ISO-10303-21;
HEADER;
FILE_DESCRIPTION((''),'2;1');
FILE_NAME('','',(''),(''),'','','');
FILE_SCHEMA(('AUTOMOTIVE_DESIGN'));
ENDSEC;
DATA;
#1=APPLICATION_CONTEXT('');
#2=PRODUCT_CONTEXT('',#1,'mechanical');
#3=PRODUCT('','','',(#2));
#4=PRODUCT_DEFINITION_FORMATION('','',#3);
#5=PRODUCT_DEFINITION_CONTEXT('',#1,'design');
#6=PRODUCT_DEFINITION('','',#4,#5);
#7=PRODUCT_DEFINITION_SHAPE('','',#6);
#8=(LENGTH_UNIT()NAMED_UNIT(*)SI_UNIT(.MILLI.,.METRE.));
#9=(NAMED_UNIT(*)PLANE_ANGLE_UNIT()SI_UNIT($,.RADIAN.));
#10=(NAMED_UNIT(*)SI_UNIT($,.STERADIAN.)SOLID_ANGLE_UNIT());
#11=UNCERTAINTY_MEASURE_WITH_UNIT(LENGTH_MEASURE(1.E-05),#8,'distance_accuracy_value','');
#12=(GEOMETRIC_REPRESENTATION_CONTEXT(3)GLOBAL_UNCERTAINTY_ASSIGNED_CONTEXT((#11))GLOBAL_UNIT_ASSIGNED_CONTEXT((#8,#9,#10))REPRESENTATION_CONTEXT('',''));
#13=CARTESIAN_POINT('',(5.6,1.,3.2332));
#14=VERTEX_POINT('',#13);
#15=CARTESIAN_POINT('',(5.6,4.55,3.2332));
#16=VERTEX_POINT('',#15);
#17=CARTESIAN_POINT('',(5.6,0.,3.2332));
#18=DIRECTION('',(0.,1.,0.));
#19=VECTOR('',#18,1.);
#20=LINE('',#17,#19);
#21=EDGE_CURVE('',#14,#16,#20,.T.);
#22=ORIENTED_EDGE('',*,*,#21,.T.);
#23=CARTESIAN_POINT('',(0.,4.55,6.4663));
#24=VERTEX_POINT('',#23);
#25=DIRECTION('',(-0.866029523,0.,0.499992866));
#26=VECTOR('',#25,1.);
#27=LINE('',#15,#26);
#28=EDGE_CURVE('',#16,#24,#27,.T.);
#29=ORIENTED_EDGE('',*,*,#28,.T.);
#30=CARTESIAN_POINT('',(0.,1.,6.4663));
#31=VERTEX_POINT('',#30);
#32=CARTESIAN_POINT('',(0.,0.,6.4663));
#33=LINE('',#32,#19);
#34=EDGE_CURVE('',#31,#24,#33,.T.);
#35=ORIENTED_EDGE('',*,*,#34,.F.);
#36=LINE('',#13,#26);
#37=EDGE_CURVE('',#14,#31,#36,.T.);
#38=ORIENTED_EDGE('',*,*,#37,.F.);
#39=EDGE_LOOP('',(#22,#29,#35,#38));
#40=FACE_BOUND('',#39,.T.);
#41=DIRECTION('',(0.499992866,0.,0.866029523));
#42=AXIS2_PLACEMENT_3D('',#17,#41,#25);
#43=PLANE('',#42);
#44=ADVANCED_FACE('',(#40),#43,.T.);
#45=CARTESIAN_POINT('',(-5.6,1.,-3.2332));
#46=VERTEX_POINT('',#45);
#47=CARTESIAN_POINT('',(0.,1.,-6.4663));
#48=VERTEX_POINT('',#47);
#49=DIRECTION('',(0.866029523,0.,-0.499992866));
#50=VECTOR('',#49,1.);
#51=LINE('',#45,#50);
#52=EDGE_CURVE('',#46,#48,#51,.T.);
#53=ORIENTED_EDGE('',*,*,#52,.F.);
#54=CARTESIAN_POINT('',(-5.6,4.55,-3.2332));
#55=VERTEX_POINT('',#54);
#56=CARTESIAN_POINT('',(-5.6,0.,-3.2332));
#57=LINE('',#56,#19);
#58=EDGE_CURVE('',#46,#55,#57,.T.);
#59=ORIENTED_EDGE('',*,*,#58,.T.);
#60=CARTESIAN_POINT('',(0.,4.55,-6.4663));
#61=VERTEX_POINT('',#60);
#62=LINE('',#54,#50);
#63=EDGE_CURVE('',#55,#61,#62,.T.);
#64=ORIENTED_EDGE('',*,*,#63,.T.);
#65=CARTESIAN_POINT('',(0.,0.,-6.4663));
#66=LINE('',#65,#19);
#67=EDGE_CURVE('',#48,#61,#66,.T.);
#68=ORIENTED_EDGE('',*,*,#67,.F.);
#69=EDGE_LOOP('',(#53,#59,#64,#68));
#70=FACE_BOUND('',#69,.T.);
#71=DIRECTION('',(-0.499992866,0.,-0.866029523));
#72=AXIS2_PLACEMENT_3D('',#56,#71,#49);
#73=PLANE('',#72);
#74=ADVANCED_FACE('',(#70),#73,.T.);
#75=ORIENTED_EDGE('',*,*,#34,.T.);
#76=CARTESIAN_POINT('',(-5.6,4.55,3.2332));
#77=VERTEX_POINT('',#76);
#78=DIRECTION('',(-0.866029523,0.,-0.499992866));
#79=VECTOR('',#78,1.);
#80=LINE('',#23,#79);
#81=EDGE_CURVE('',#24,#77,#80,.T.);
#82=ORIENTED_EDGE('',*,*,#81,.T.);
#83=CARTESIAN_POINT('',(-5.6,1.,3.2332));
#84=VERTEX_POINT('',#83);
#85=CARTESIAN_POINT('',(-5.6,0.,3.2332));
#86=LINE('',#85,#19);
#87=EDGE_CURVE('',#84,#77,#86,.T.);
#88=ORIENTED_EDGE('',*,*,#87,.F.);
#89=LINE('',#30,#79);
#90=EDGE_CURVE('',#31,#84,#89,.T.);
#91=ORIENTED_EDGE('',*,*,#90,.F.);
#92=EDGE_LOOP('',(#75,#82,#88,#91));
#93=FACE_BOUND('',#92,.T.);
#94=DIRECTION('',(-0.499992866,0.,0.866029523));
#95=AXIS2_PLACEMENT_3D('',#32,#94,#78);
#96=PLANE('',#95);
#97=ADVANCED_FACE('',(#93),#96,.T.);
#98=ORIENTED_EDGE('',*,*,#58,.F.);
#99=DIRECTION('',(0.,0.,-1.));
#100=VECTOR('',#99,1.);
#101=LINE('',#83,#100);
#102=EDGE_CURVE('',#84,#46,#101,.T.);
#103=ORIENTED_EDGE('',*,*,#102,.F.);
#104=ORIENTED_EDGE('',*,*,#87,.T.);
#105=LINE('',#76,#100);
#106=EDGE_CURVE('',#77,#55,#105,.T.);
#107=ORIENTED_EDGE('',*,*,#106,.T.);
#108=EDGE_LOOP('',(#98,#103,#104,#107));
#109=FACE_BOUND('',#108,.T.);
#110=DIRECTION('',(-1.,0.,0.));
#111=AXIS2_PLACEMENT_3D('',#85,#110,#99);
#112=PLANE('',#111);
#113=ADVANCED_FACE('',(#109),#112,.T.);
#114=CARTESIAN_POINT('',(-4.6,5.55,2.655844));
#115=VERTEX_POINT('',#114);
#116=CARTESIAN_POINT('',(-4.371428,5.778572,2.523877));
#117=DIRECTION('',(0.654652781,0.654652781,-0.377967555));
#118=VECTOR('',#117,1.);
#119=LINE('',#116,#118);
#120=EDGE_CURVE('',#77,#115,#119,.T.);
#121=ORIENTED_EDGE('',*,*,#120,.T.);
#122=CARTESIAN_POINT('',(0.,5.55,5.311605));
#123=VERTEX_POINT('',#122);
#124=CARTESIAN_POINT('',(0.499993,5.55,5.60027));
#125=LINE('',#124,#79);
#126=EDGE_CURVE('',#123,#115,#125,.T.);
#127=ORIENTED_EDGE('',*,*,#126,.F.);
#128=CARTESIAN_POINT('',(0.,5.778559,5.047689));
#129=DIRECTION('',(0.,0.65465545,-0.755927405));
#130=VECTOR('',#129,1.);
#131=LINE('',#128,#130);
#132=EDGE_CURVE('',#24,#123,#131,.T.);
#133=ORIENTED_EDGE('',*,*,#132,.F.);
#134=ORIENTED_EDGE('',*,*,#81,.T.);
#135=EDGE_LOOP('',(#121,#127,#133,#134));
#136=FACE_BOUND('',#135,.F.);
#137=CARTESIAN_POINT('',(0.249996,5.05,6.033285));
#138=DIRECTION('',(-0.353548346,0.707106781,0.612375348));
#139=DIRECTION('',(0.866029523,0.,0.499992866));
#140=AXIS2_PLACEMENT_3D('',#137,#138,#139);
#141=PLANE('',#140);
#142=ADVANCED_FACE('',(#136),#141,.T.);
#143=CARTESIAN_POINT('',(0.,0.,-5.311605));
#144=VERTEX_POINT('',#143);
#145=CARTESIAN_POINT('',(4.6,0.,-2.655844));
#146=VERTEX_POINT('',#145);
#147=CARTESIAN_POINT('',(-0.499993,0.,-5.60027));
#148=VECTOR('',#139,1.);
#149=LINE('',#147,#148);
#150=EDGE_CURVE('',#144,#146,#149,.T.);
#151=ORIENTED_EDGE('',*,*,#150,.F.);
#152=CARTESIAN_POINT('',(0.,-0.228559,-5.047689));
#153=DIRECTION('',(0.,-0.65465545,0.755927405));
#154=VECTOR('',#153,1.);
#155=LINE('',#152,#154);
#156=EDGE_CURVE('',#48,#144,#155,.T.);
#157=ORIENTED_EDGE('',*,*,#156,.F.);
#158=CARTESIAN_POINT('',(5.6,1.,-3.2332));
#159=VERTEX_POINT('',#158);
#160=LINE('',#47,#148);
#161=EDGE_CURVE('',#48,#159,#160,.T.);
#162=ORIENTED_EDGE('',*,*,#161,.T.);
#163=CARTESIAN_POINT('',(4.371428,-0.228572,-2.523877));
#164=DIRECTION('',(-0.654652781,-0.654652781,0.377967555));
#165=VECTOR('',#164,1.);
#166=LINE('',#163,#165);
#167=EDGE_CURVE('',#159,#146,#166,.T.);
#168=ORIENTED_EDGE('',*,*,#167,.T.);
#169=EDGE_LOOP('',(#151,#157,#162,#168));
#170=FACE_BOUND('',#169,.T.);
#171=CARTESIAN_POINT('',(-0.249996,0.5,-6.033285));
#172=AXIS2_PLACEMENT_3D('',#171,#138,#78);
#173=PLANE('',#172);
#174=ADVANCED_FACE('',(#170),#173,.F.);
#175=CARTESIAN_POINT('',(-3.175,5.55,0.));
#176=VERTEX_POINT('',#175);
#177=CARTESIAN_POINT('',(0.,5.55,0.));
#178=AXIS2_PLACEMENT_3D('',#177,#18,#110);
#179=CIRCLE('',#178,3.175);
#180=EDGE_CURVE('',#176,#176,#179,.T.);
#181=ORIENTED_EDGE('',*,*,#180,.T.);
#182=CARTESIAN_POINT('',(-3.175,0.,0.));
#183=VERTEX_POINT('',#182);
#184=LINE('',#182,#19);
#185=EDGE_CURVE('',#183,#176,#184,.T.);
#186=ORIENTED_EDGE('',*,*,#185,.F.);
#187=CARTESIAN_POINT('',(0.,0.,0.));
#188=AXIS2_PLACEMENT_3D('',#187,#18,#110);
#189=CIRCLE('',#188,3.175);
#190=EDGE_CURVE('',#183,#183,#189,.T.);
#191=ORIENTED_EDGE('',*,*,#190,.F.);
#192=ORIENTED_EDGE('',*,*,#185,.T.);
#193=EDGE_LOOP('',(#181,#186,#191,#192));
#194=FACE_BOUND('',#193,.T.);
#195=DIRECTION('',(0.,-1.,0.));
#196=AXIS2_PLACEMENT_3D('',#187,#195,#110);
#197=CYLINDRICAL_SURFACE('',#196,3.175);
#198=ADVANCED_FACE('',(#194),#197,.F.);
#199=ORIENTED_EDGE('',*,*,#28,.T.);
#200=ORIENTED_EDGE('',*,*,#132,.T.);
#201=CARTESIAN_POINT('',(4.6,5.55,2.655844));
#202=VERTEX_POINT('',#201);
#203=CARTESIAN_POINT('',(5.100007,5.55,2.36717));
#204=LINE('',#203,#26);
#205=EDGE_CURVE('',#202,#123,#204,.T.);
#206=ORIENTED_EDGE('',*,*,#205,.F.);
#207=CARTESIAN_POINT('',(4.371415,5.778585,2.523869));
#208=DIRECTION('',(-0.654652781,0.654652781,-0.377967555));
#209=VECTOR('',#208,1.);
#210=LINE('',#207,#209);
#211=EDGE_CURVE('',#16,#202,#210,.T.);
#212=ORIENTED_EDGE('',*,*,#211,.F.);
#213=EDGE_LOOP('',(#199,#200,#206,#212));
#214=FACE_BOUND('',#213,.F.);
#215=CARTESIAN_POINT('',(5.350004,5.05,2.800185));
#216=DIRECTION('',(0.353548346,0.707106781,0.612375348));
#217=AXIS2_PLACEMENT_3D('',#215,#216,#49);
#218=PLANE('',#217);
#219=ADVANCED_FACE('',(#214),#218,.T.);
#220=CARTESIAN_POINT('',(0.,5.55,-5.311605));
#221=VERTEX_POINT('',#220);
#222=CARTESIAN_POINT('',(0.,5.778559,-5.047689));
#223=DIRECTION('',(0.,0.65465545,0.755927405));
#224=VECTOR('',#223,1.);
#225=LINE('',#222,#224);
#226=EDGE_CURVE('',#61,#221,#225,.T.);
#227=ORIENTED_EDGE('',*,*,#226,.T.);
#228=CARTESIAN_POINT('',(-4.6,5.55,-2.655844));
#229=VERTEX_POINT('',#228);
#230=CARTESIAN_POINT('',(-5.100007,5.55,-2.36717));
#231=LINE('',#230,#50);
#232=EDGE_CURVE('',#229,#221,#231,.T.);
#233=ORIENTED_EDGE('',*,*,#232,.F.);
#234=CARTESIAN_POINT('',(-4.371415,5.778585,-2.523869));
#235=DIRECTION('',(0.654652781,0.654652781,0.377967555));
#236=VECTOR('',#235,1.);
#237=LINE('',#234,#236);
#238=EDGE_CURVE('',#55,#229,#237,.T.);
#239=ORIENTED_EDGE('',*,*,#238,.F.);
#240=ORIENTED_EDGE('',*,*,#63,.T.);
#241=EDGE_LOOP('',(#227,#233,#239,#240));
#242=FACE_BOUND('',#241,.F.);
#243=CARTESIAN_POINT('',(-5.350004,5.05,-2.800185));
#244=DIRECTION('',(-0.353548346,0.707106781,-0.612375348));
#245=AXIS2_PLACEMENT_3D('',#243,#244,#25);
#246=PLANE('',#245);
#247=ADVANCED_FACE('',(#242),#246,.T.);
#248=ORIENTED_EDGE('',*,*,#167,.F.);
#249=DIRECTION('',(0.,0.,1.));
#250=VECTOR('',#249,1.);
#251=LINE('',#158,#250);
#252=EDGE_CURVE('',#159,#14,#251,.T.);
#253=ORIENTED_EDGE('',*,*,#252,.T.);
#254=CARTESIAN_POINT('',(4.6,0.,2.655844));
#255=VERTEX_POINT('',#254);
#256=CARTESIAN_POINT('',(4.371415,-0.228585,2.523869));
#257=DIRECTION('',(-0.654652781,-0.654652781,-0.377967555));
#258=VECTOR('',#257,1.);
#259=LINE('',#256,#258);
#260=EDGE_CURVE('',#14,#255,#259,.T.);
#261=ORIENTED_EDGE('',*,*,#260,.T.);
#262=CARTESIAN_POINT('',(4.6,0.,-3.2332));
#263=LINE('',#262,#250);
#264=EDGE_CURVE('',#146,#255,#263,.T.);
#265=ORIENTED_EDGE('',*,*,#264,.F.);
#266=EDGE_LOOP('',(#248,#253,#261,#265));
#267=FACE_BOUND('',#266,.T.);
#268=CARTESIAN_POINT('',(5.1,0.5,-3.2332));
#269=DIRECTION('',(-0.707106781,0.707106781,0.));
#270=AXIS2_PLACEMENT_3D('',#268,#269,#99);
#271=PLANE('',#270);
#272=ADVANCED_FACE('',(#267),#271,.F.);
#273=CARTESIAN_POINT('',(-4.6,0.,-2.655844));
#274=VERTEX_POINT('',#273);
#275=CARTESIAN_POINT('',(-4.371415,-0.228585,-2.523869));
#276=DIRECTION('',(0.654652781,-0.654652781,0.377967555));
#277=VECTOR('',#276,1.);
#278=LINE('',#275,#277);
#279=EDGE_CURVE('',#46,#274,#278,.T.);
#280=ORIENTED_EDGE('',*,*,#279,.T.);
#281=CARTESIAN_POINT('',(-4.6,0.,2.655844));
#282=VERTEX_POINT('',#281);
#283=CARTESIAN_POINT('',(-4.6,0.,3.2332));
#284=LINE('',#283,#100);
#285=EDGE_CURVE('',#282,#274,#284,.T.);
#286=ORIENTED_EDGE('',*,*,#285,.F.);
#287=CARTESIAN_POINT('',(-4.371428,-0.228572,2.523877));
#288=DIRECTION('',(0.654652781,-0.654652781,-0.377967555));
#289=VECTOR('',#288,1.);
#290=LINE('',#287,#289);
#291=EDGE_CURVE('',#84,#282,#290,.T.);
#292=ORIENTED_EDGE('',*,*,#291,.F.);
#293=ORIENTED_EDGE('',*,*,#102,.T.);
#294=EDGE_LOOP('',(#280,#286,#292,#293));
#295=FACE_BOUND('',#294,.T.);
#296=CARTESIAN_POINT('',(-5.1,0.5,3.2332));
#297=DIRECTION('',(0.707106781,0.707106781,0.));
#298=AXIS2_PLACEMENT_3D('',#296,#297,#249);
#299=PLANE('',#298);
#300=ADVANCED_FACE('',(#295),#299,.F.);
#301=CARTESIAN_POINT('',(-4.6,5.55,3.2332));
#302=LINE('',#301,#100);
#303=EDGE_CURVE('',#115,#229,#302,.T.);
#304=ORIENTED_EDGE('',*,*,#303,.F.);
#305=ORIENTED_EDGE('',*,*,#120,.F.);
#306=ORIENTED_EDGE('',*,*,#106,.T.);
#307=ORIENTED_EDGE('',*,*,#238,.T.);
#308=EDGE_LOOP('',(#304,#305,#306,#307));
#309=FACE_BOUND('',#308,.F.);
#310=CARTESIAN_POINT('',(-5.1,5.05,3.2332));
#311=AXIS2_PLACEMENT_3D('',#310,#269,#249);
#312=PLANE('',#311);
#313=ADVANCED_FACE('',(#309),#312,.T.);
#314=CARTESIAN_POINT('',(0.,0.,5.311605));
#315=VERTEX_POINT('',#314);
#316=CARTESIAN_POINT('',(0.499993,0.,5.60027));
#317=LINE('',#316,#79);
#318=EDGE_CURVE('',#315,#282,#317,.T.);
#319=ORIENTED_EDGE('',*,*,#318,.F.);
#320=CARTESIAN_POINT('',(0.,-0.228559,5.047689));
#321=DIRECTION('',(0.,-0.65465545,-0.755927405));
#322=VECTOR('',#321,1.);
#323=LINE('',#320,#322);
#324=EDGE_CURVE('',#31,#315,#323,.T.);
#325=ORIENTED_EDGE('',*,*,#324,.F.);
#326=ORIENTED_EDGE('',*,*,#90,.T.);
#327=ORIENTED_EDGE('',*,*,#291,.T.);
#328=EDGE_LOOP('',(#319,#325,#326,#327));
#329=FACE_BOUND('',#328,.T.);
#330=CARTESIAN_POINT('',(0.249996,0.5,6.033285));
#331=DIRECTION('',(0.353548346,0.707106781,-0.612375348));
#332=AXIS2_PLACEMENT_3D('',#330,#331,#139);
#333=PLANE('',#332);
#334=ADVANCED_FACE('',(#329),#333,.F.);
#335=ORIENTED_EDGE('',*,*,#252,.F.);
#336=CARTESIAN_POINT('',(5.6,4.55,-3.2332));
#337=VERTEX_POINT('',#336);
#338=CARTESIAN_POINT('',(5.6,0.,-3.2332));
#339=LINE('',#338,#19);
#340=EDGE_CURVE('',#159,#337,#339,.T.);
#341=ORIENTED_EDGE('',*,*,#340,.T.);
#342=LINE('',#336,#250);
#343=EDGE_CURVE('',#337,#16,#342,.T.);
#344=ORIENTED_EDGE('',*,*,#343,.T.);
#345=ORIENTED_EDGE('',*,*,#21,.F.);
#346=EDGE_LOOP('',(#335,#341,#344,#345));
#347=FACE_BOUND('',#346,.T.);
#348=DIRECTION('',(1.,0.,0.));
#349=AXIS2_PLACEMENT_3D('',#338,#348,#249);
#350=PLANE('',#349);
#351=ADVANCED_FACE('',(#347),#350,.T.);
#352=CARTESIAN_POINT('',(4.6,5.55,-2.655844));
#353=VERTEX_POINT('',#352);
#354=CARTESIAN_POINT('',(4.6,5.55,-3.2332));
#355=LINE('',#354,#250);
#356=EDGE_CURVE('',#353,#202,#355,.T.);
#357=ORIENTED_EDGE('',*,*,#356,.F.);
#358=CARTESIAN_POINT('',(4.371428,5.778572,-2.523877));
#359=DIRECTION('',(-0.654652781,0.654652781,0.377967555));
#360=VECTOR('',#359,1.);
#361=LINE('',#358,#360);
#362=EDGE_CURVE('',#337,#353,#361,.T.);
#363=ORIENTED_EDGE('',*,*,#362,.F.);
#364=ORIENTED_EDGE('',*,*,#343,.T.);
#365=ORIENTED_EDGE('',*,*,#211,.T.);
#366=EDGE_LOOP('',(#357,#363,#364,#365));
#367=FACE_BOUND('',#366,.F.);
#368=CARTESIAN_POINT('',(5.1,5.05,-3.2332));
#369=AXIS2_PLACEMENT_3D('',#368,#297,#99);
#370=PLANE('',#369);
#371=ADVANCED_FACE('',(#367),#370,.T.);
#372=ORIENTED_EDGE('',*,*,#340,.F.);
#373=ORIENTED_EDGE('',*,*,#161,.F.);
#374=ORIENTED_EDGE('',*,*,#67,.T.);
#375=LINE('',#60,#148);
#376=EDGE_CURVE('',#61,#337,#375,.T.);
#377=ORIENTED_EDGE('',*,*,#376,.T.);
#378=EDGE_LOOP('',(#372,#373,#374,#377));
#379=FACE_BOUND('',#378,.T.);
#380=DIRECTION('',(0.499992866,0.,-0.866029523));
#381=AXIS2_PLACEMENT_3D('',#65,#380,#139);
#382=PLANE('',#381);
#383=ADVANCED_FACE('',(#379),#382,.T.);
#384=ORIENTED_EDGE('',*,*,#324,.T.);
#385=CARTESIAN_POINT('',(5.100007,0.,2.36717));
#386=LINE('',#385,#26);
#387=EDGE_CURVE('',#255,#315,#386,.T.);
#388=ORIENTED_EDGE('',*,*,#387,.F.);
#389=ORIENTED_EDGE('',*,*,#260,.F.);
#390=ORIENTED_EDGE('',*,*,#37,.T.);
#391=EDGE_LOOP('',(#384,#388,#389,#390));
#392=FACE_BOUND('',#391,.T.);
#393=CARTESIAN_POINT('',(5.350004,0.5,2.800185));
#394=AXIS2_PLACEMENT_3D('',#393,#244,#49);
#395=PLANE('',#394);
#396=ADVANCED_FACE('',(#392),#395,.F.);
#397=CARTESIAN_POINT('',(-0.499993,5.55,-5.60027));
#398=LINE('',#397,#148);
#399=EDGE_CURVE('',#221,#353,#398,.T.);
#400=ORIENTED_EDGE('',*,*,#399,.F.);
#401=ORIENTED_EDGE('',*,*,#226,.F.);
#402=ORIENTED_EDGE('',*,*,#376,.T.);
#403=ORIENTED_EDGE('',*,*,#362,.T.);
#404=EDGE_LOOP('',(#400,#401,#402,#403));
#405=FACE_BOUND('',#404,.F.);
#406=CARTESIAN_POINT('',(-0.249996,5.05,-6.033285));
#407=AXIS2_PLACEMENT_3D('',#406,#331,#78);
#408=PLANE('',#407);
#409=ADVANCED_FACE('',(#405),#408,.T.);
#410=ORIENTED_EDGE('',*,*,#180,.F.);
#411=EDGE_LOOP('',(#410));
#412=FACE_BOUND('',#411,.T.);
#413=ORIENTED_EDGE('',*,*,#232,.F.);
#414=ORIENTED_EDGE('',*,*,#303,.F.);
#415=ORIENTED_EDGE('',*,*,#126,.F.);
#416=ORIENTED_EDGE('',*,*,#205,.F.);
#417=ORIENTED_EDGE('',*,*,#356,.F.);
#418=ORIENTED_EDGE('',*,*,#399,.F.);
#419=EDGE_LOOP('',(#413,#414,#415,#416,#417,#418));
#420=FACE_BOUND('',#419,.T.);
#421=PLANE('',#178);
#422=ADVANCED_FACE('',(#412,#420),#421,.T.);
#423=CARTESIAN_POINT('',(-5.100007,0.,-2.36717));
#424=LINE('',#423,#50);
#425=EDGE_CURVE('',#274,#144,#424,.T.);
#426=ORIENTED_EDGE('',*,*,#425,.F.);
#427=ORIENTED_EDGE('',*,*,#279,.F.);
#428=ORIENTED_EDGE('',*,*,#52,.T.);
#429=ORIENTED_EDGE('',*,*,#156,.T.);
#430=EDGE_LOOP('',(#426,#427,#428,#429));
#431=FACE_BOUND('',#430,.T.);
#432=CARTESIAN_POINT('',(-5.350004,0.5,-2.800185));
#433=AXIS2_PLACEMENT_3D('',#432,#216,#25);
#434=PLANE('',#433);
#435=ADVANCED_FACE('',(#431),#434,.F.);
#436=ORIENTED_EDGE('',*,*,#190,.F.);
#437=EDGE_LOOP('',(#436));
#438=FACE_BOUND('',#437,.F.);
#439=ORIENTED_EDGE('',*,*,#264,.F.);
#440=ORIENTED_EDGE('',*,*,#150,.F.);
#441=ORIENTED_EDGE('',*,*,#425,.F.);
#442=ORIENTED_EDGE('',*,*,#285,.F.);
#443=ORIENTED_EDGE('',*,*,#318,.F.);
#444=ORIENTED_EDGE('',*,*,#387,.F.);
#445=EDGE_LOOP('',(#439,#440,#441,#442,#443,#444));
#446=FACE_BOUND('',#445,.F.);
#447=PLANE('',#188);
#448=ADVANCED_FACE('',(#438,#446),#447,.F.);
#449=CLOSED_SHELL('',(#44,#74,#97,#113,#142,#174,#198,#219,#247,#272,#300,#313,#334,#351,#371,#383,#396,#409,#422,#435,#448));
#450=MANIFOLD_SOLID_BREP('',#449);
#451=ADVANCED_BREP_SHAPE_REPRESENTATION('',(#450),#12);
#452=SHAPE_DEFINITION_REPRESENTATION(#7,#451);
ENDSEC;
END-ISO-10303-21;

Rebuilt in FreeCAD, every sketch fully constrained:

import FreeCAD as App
import Part
import Sketcher
Q = App.Units.Quantity


def edges_at(feature, points):
    """Names of the edges that pass closest to the given points."""
    edges = feature.Shape.Edges
    near = lambda p: min(range(len(edges)), key=lambda i: edges[i].distToShape(Part.Vertex(*p))[0])
    return sorted({f"Edge{near(p) + 1}" for p in points})

doc = App.newDocument("Part")
body = doc.addObject("PartDesign::Body", "Body")

sketch1 = doc.addObject("Sketcher::SketchObject", "Sketch")
body.addObject(sketch1)
sketch1.AttachmentSupport = (doc.XZ_Plane, [""])
sketch1.MapMode = "FlatFace"
sketch1.addGeometry([
    Part.LineSegment(App.Vector(5.6, -3.2332, 0), App.Vector(0, -6.4663, 0)),
    Part.LineSegment(App.Vector(0, -6.4663, 0), App.Vector(-5.6, -3.2332, 0)),
    Part.LineSegment(App.Vector(-5.6, -3.2332, 0), App.Vector(-5.6, 3.2332, 0)),
    Part.LineSegment(App.Vector(-5.6, 3.2332, 0), App.Vector(0, 6.4663, 0)),
    Part.LineSegment(App.Vector(0, 6.4663, 0), App.Vector(5.6, 3.2332, 0)),
    Part.LineSegment(App.Vector(5.6, 3.2332, 0), App.Vector(5.6, -3.2332, 0)),
    Part.Circle(App.Vector(0, 0, 0), App.Vector(0, 0, 1), 3.175),
], False)
sketch1.addConstraint([
    Sketcher.Constraint("Coincident", 0, 2, 1, 1),
    Sketcher.Constraint("Coincident", 1, 2, 2, 1),
    Sketcher.Constraint("Coincident", 2, 2, 3, 1),
    Sketcher.Constraint("Coincident", 3, 2, 4, 1),
    Sketcher.Constraint("Coincident", 4, 2, 5, 1),
    Sketcher.Constraint("Coincident", 5, 2, 0, 1),
    Sketcher.Constraint("Vertical", 2),
    Sketcher.Constraint("Vertical", 5),
    Sketcher.Constraint("Coincident", 6, 3, -1, 1),
    Sketcher.Constraint("Symmetric", 0, 2, 3, 2, -1, 1),
    Sketcher.Constraint("Symmetric", 1, 2, 4, 2, -1, 1),
    Sketcher.Constraint("PointOnObject", 0, 2, -2),
    Sketcher.Constraint("Parallel", 0, 3),
    Sketcher.Constraint("Horizontal", 2, 2, 4, 2),
    Sketcher.Constraint("Diameter", 6, Q("6.35 mm")),
    Sketcher.Constraint("DistanceX", 2, 2, 4, 2, Q("11.2 mm")),
    Sketcher.Constraint("Angle", 0, Q("-150.0005 deg")),
    Sketcher.Constraint("DistanceY", 2, 1, 2, 2, Q("6.4664 mm")),
])
pad1 = doc.addObject("PartDesign::Pad", "Pad")
body.addObject(pad1)
pad1.Profile = sketch1
pad1.Length = 5.55
pad1.Reversed = True
doc.recompute()

chamfer = doc.addObject("PartDesign::Chamfer", "Chamfer")
body.addObject(chamfer)
chamfer.Base = (pad1, edges_at(pad1, [
    (-2.8, 5.55, 4.85),
    (2.8, 5.55, 4.85),
    (5.6, 5.55, 0),
    (2.8, 5.55, -4.85),
    (-2.8, 5.55, -4.85),
    (-5.6, 5.55, 0),
    (-5.6, 0, 0),
    (-2.8, 0, -4.85),
    (2.8, 0, -4.85),
    (5.6, 0, 0),
    (2.8, 0, 4.85),
    (-2.8, 0, 4.85),
]))
chamfer.Size = 1

doc.recompute()
